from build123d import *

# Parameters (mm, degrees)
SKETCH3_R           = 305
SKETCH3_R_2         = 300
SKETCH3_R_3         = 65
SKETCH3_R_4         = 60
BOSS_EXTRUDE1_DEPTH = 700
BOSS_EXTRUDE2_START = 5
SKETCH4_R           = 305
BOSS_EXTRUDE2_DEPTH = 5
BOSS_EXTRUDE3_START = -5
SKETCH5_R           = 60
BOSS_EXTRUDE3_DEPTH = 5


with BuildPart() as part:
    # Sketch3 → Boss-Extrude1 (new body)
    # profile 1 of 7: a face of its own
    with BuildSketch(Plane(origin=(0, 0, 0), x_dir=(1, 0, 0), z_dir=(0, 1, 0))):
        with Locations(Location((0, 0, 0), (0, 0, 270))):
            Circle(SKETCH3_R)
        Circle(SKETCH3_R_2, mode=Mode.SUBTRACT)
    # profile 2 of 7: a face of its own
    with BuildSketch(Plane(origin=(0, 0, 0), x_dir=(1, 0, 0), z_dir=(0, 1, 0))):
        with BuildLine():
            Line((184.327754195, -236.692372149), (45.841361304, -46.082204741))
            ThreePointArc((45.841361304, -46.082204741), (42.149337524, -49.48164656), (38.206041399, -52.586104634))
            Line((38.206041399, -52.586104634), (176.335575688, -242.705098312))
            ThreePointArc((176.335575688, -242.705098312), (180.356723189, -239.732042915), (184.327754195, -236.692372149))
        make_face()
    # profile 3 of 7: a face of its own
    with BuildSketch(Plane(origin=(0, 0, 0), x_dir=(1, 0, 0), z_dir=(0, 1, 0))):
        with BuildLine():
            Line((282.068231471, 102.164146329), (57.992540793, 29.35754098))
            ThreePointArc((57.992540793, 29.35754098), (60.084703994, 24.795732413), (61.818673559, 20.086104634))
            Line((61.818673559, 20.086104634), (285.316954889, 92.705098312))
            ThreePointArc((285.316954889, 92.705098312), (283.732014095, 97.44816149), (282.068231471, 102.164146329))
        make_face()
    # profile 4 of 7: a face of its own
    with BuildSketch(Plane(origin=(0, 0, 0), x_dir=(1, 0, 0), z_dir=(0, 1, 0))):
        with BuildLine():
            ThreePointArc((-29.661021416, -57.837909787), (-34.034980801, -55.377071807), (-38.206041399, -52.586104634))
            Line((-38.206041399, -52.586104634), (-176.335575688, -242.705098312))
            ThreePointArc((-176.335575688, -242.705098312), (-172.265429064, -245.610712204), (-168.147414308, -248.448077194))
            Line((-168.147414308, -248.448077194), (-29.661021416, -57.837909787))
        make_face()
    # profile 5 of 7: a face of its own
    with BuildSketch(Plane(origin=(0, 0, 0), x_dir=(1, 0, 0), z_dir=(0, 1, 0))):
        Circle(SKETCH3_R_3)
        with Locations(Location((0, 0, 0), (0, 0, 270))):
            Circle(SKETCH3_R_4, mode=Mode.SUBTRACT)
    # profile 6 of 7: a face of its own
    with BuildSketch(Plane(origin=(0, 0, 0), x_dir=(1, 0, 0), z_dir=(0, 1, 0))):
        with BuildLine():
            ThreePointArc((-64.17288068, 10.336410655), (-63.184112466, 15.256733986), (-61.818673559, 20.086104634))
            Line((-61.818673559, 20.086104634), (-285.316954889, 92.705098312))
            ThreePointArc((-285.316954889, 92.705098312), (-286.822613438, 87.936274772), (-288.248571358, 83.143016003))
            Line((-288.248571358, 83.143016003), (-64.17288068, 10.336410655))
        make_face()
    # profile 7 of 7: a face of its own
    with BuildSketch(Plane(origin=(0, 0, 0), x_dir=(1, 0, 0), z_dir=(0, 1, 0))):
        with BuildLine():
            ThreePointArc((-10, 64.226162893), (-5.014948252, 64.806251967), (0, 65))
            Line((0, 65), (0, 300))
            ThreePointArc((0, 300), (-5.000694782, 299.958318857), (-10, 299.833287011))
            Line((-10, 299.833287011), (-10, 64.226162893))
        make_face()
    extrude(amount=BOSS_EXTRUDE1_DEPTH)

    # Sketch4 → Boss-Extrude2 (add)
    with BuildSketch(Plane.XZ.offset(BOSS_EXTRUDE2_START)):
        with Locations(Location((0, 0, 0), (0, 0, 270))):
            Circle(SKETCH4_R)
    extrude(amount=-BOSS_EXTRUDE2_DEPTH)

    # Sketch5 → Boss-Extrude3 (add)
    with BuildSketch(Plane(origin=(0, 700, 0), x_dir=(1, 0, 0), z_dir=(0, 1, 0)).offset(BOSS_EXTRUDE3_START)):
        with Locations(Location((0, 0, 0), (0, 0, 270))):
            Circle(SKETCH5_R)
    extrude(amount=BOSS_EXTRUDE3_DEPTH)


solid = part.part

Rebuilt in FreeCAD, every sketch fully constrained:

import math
import FreeCAD as App
import Part
import Sketcher
Q = App.Units.Quantity

doc = App.newDocument("Part")
params = doc.addObject("Spreadsheet::Sheet", "Params")
for row, (alias, value) in enumerate([
    ("sketch1_diameter", "610 mm"),
    ("sketch1_diameter2", "120 mm"),
    ("sketch1_radius", "300 mm"),
    ("sketch1_radius2", "65 mm"),
    ("pad1_length", "700 mm"),
    ("sketch2_diameter", "610 mm"),
    ("pad2_length", "5 mm"),
    ("sketch3_diameter", "120 mm"),
    ("pad3_length", "5 mm"),
], start=1):
    params.set(f"A{row}", alias)
    params.set(f"B{row}", "=" + value)
    params.setAlias(f"B{row}", alias)

body = doc.addObject("PartDesign::Body", "Body")

sketch1 = body.newObject("Sketcher::SketchObject", "Sketch")
sketch1.AttachmentSupport = (doc.getObject("XZ_Plane"), [""])
sketch1.MapMode = "FlatFace"
sketch1.addGeometry(Part.Circle(App.Vector(0, 0, 0), App.Vector(0, 0, 1), 305), False)
sketch1.addGeometry(Part.ArcOfCircle(Part.Circle(App.Vector(0, 0, 0), App.Vector(0, 0, 1), 300), math.radians(-18), math.radians(52)), False)
sketch1.addGeometry(Part.LineSegment(App.Vector(184, 237, 0), App.Vector(46, 46, 0)), False)
sketch1.addGeometry(Part.ArcOfCircle(Part.Circle(App.Vector(0, 0, 0), App.Vector(0, 0, 1), 65), math.radians(-18), math.radians(45)), False)
sketch1.addGeometry(Part.LineSegment(App.Vector(62, -20, 0), App.Vector(285, -93, 0)), False)
sketch1.addGeometry(Part.ArcOfCircle(Part.Circle(App.Vector(0, 0, 0), App.Vector(0, 0, 1), 300), math.radians(-90), math.radians(-20)), False)
sketch1.addGeometry(Part.LineSegment(App.Vector(282, -102, 0), App.Vector(58, -29, 0)), False)
sketch1.addGeometry(Part.ArcOfCircle(Part.Circle(App.Vector(0, 0, 0), App.Vector(0, 0, 1), 65), math.radians(-90), math.radians(-27)), False)
sketch1.addGeometry(Part.LineSegment(App.Vector(0, -65, 0), App.Vector(0, -300, 0)), False)
sketch1.addGeometry(Part.ArcOfCircle(Part.Circle(App.Vector(0, 0, 0), App.Vector(0, 0, 1), 300), math.radians(-162), math.radians(-92)), False)
sketch1.addGeometry(Part.LineSegment(App.Vector(-10, -300, 0), App.Vector(-10, -64, 0)), False)
sketch1.addGeometry(Part.ArcOfCircle(Part.Circle(App.Vector(0, 0, 0), App.Vector(0, 0, 1), 65), math.radians(-162), math.radians(-99)), False)
sketch1.addGeometry(Part.LineSegment(App.Vector(-62, -20, 0), App.Vector(-285, -93, 0)), False)
sketch1.addGeometry(Part.ArcOfCircle(Part.Circle(App.Vector(0, 0, 0), App.Vector(0, 0, 1), 300), math.radians(126), math.radians(196)), False)
sketch1.addGeometry(Part.LineSegment(App.Vector(-288, -83, 0), App.Vector(-64, -10, 0)), False)
sketch1.addGeometry(Part.ArcOfCircle(Part.Circle(App.Vector(0, 0, 0), App.Vector(0, 0, 1), 65), math.radians(126), math.radians(189)), False)
sketch1.addGeometry(Part.LineSegment(App.Vector(-38, 53, 0), App.Vector(-176, 243, 0)), False)
sketch1.addGeometry(Part.ArcOfCircle(Part.Circle(App.Vector(0, 0, 0), App.Vector(0, 0, 1), 300), math.radians(54), math.radians(124)), False)
sketch1.addGeometry(Part.LineSegment(App.Vector(-168, 248, 0), App.Vector(-30, 58, 0)), False)
sketch1.addGeometry(Part.ArcOfCircle(Part.Circle(App.Vector(0, 0, 0), App.Vector(0, 0, 1), 65), math.radians(54), math.radians(117)), False)
sketch1.addGeometry(Part.LineSegment(App.Vector(38, 53, 0), App.Vector(176, 243, 0)), False)
sketch1.addGeometry(Part.Circle(App.Vector(0, 0, 0), App.Vector(0, 0, 1), 60), False)
sketch1.addConstraint(Sketcher.Constraint("Coincident", 1, 2, 2, 1))
sketch1.addConstraint(Sketcher.Constraint("Coincident", 2, 2, 3, 2))
sketch1.addConstraint(Sketcher.Constraint("Coincident", 3, 1, 4, 1))
sketch1.addConstraint(Sketcher.Constraint("Coincident", 4, 2, 1, 1))
sketch1.addConstraint(Sketcher.Constraint("Coincident", 5, 2, 6, 1))
sketch1.addConstraint(Sketcher.Constraint("Coincident", 6, 2, 7, 2))
sketch1.addConstraint(Sketcher.Constraint("Coincident", 7, 1, 8, 1))
sketch1.addConstraint(Sketcher.Constraint("Coincident", 8, 2, 5, 1))
sketch1.addConstraint(Sketcher.Constraint("Coincident", 9, 2, 10, 1))
sketch1.addConstraint(Sketcher.Constraint("Coincident", 10, 2, 11, 2))
sketch1.addConstraint(Sketcher.Constraint("Coincident", 11, 1, 12, 1))
sketch1.addConstraint(Sketcher.Constraint("Coincident", 12, 2, 9, 1))
sketch1.addConstraint(Sketcher.Constraint("Coincident", 13, 2, 14, 1))
sketch1.addConstraint(Sketcher.Constraint("Coincident", 14, 2, 15, 2))
sketch1.addConstraint(Sketcher.Constraint("Coincident", 15, 1, 16, 1))
sketch1.addConstraint(Sketcher.Constraint("Coincident", 16, 2, 13, 1))
sketch1.addConstraint(Sketcher.Constraint("Coincident", 17, 2, 18, 1))
sketch1.addConstraint(Sketcher.Constraint("Coincident", 18, 2, 19, 2))
sketch1.addConstraint(Sketcher.Constraint("Coincident", 19, 1, 20, 1))
sketch1.addConstraint(Sketcher.Constraint("Coincident", 20, 2, 17, 1))
sketch1.addConstraint(Sketcher.Constraint("Vertical", 8))
sketch1.addConstraint(Sketcher.Constraint("Vertical", 10))
sketch1.addConstraint(Sketcher.Constraint("Coincident", 0, 3, -1, 1))
sketch1.addConstraint(Sketcher.Constraint("Coincident", 1, 3, -1, 1))
sketch1.addConstraint(Sketcher.Constraint("Coincident", 3, 3, -1, 1))
sketch1.addConstraint(Sketcher.Constraint("Coincident", 5, 3, -1, 1))
sketch1.addConstraint(Sketcher.Constraint("Coincident", 7, 3, -1, 1))
sketch1.addConstraint(Sketcher.Constraint("Coincident", 9, 3, -1, 1))
sketch1.addConstraint(Sketcher.Constraint("Coincident", 11, 3, -1, 1))
sketch1.addConstraint(Sketcher.Constraint("Coincident", 13, 3, -1, 1))
sketch1.addConstraint(Sketcher.Constraint("Coincident", 15, 3, -1, 1))
sketch1.addConstraint(Sketcher.Constraint("Coincident", 17, 3, -1, 1))
sketch1.addConstraint(Sketcher.Constraint("Coincident", 19, 3, -1, 1))
sketch1.addConstraint(Sketcher.Constraint("Coincident", 21, 3, -1, 1))
sketch1.addConstraint(Sketcher.Constraint("Equal", 1, 5))
sketch1.addConstraint(Sketcher.Constraint("Equal", 3, 7))
sketch1.addConstraint(Sketcher.Constraint("Equal", 5, 9))
sketch1.addConstraint(Sketcher.Constraint("Equal", 7, 11))
sketch1.addConstraint(Sketcher.Constraint("Equal", 9, 13))
sketch1.addConstraint(Sketcher.Constraint("Equal", 11, 15))
sketch1.addConstraint(Sketcher.Constraint("Equal", 13, 17))
sketch1.addConstraint(Sketcher.Constraint("Equal", 15, 19))
sketch1.addConstraint(Sketcher.Constraint("PointOnObject", 7, 1, -2))
sketch1.addConstraint(Sketcher.Constraint("Parallel", 4, 6))
sketch1.addConstraint(Sketcher.Constraint("Parallel", 12, 14))
sketch1.addConstraint(Sketcher.Constraint("Parallel", 16, 18))
sketch1.addConstraint(Sketcher.Constraint("Parallel", 2, 20))
sketch1.addConstraint(Sketcher.Constraint("Horizontal", 3, 1, 11, 1))
sketch1.addConstraint(Sketcher.Constraint("Horizontal", 4, 2, 12, 2))
sketch1.addConstraint(Sketcher.Constraint("Horizontal", 15, 1, 19, 1))
sketch1.addConstraint(Sketcher.Constraint("Horizontal", 16, 2, 20, 2))
sketch1.addConstraint(Sketcher.Constraint("Equal", 2, 6))
sketch1.addConstraint(Sketcher.Constraint("Equal", 6, 14))
sketch1.addConstraint(Sketcher.Constraint("Equal", 14, 18))
sketch1.addConstraint(Sketcher.Constraint("Diameter", 0, Q("610 mm")))
sketch1.addConstraint(Sketcher.Constraint("Diameter", 21, Q("120 mm")))
sketch1.addConstraint(Sketcher.Constraint("Radius", 1, Q("300 mm")))
sketch1.addConstraint(Sketcher.Constraint("Radius", 3, Q("65 mm")))
sketch1.addConstraint(Sketcher.Constraint("Angle", 2, Q("-126 deg")))
sketch1.addConstraint(Sketcher.Constraint("Angle", 4, Q("-18 deg")))
sketch1.addConstraint(Sketcher.Constraint("DistanceX", 9, 2, -1, 1, Q("10 mm")))
sketch1.addConstraint(Sketcher.Constraint("DistanceY", 4, 2, -1, 1, Q("92.705098 mm")))
sketch1.addConstraint(Sketcher.Constraint("DistanceY", -1, 1, 16, 2, Q("242.705098 mm")))
sketch1.addConstraint(Sketcher.Constraint("DistanceY", 2, 2, 19, 1, Q("6.5039 mm")))
sketch1.setExpression("Constraints[54]", "Params.sketch1_diameter")
sketch1.setExpression("Constraints[55]", "Params.sketch1_diameter2")
sketch1.setExpression("Constraints[56]", "Params.sketch1_radius")
sketch1.setExpression("Constraints[57]", "Params.sketch1_radius2")
pad1 = body.newObject("PartDesign::Pad", "Pad")
pad1.Profile = sketch1
pad1.setExpression("Length", "Params.pad1_length")
pad1.Reversed = True

sketch2 = body.newObject("Sketcher::SketchObject", "Sketch001")
sketch2.AttachmentSupport = (doc.getObject("XZ_Plane"), [""])
sketch2.MapMode = "FlatFace"
sketch2.AttachmentOffset = App.Placement(App.Vector(0, 0, 5), App.Rotation())
sketch2.addGeometry(Part.Circle(App.Vector(0, 0, 0), App.Vector(0, 0, 1), 305), False)
sketch2.addConstraint(Sketcher.Constraint("Coincident", 0, 3, -1, 1))
sketch2.addConstraint(Sketcher.Constraint("Diameter", 0, Q("610 mm")))
sketch2.setExpression("Constraints[1]", "Params.sketch2_diameter")
pad2 = body.newObject("PartDesign::Pad", "Pad001")
pad2.Profile = sketch2
pad2.setExpression("Length", "Params.pad2_length")
pad2.Reversed = True

sketch3 = body.newObject("Sketcher::SketchObject", "Sketch002")
sketch3.AttachmentSupport = (doc.getObject("XZ_Plane"), [""])
sketch3.MapMode = "FlatFace"
sketch3.AttachmentOffset = App.Placement(App.Vector(0, 0, -695), App.Rotation())
sketch3.addGeometry(Part.Circle(App.Vector(0, 0, 0), App.Vector(0, 0, 1), 60), False)
sketch3.addConstraint(Sketcher.Constraint("Coincident", 0, 3, -1, 1))
sketch3.addConstraint(Sketcher.Constraint("Diameter", 0, Q("120 mm")))
sketch3.setExpression("Constraints[1]", "Params.sketch3_diameter")
pad3 = body.newObject("PartDesign::Pad", "Pad002")
pad3.Profile = sketch3
pad3.setExpression("Length", "Params.pad3_length")
pad3.Reversed = True

doc.recompute()
